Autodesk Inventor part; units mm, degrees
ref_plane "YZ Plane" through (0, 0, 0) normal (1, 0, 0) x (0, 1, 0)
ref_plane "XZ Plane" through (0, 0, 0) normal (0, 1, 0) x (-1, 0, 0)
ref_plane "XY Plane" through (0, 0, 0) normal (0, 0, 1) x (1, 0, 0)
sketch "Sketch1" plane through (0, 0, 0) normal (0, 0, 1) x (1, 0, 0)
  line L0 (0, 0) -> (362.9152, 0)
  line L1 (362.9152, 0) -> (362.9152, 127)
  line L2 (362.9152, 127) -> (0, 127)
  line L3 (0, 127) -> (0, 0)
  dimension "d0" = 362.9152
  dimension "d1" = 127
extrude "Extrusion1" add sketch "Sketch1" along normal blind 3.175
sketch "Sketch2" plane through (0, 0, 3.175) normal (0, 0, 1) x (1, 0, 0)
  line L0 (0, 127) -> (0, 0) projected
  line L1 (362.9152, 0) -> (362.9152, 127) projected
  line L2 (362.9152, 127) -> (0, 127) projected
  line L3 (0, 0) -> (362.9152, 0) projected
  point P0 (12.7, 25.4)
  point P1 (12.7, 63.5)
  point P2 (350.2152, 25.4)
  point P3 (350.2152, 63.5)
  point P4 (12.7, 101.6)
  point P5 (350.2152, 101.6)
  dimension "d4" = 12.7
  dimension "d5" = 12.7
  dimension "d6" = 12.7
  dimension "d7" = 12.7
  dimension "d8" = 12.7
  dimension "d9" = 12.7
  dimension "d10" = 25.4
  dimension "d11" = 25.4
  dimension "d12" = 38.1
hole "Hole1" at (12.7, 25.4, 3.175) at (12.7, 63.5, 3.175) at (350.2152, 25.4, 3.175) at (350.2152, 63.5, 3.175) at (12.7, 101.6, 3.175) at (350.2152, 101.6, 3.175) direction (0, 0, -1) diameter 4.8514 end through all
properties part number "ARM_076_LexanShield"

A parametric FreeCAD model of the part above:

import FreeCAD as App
import Part
import Sketcher

V = App.Vector
Q = App.Units.Quantity

doc = App.newDocument("Part")
body = doc.addObject("PartDesign::Body", "Body")

sketch1 = body.newObject("Sketcher::SketchObject", "Sketch")
sketch1.AttachmentSupport = (doc.getObject("XY_Plane"), [""])
sketch1.MapMode = "FlatFace"
sketch1.addGeometry(Part.LineSegment(V(0, 127, 0), V(0, 0, 0)), False)
sketch1.addGeometry(Part.LineSegment(V(0, 0, 0), V(363, 0, 0)), False)
sketch1.addGeometry(Part.LineSegment(V(363, 0, 0), V(363, 127, 0)), False)
sketch1.addGeometry(Part.LineSegment(V(363, 127, 0), V(0, 127, 0)), False)
sketch1.addConstraint(Sketcher.Constraint("Coincident", 0, 2, 1, 1))
sketch1.addConstraint(Sketcher.Constraint("Coincident", 1, 2, 2, 1))
sketch1.addConstraint(Sketcher.Constraint("Coincident", 2, 2, 3, 1))
sketch1.addConstraint(Sketcher.Constraint("Coincident", 3, 2, 0, 1))
sketch1.addConstraint(Sketcher.Constraint("Vertical", 0))
sketch1.addConstraint(Sketcher.Constraint("Horizontal", 1))
sketch1.addConstraint(Sketcher.Constraint("Vertical", 2))
sketch1.addConstraint(Sketcher.Constraint("Horizontal", 3))
sketch1.addConstraint(Sketcher.Constraint("Coincident", 0, 2, -1, 1))
sketch1.addConstraint(Sketcher.Constraint("DistanceY", 0, 2, 0, 1, Q("5 in")))
sketch1.addConstraint(Sketcher.Constraint("DistanceX", 1, 1, 1, 2, Q("14.288 in")))
pad1 = body.newObject("PartDesign::Pad", "Pad")
pad1.Profile = sketch1
pad1.Length = Q("0.125 in")

sketch2 = body.newObject("Sketcher::SketchObject", "Sketch001")
sketch2.AttachmentSupport = (doc.getObject("XY_Plane"), [""])
sketch2.MapMode = "FlatFace"
sketch2.AttachmentOffset = App.Placement(V(0, 0, 0.125 * 25.4), App.Rotation())
sketch2.addGeometry(Part.Circle(V(12.7, 25.4, 0), V(0, 0, 1), 2.4), False)
sketch2.addGeometry(Part.Circle(V(12.7, 63.5, 0), V(0, 0, 1), 2.4), False)
sketch2.addGeometry(Part.Circle(V(350.2, 25.4, 0), V(0, 0, 1), 2.4), False)
sketch2.addGeometry(Part.Circle(V(350.2, 63.5, 0), V(0, 0, 1), 2.4), False)
sketch2.addGeometry(Part.Circle(V(12.7, 101.6, 0), V(0, 0, 1), 2.4), False)
sketch2.addGeometry(Part.Circle(V(350.2, 101.6, 0), V(0, 0, 1), 2.4), False)
sketch2.addConstraint(Sketcher.Constraint("Equal", 0, 1))
sketch2.addConstraint(Sketcher.Constraint("Equal", 1, 2))
sketch2.addConstraint(Sketcher.Constraint("Equal", 2, 3))
sketch2.addConstraint(Sketcher.Constraint("Equal", 3, 4))
sketch2.addConstraint(Sketcher.Constraint("Equal", 4, 5))
sketch2.addConstraint(Sketcher.Constraint("Horizontal", 0, 3, 2, 3))
sketch2.addConstraint(Sketcher.Constraint("Horizontal", 1, 3, 3, 3))
sketch2.addConstraint(Sketcher.Constraint("Horizontal", 4, 3, 5, 3))
sketch2.addConstraint(Sketcher.Constraint("Vertical", 0, 3, 1, 3))
sketch2.addConstraint(Sketcher.Constraint("Vertical", 2, 3, 3, 3))
sketch2.addConstraint(Sketcher.Constraint("Vertical", 1, 3, 4, 3))
sketch2.addConstraint(Sketcher.Constraint("Vertical", 3, 3, 5, 3))
sketch2.addConstraint(Sketcher.Constraint("Diameter", 0, Q("0.191 in")))
sketch2.addConstraint(Sketcher.Constraint("DistanceY", -1, 1, 0, 3, Q("1 in")))
sketch2.addConstraint(Sketcher.Constraint("DistanceY", -1, 1, 4, 3, Q("4 in")))
sketch2.addConstraint(Sketcher.Constraint("DistanceX", -1, 1, 0, 3, Q("0.5 in")))
sketch2.addConstraint(Sketcher.Constraint("DistanceY", -1, 1, 1, 3, Q("2.5 in")))
sketch2.addConstraint(Sketcher.Constraint("DistanceX", -1, 1, 2, 3, Q("13.788 in")))
doc.recompute()
hole = body.newObject("PartDesign::Hole", "Hole")
hole.Profile = sketch2
hole.ThreadType = "None"
hole.Diameter = Q("0.191 in")
hole.DepthType = "ThroughAll"

doc.recompute()
